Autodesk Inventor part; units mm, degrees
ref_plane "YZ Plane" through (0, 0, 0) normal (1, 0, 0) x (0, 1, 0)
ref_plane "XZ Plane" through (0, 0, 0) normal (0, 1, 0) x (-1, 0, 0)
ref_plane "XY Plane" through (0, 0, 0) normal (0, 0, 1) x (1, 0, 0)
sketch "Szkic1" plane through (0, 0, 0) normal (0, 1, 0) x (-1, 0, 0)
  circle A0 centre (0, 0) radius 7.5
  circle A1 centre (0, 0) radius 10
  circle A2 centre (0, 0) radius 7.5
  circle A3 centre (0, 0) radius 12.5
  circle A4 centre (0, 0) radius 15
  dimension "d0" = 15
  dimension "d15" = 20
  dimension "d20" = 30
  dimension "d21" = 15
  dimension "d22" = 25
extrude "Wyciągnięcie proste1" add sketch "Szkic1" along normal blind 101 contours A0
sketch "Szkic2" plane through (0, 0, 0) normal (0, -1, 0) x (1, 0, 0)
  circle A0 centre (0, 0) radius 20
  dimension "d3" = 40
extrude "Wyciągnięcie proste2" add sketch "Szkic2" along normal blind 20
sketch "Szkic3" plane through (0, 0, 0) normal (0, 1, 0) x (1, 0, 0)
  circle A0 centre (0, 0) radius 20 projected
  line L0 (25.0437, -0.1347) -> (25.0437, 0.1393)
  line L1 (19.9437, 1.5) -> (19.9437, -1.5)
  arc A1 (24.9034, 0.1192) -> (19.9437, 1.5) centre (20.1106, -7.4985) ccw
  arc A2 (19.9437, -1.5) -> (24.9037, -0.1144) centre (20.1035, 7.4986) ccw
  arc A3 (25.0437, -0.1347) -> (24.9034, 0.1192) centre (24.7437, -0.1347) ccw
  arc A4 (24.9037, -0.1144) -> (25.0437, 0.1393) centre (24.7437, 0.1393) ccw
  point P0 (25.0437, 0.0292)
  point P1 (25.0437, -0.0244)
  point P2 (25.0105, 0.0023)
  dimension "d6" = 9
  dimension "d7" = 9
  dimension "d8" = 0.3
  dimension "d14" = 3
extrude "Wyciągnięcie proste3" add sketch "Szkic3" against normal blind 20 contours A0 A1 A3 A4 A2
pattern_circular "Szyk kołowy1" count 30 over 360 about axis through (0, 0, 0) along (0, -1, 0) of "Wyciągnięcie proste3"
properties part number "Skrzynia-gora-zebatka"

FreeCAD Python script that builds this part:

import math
import FreeCAD as App
import Part
import Sketcher
Q = App.Units.Quantity

doc = App.newDocument("Part")
params = doc.addObject("Spreadsheet::Sheet", "Params")
for row, (alias, value) in enumerate([
    ("sketch1_diameter", "15 mm"),
    ("pad1_length", "101 mm"),
    ("sketch2_diameter", "40 mm"),
    ("pad2_length", "20 mm"),
    ("sketch3_radius", "9 mm"),
    ("sketch3_radius2", "0.3 mm"),
    ("sketch3_radius3", "20 mm"),
    ("pad3_length", "20 mm"),
], start=1):
    params.set(f"A{row}", alias)
    params.set(f"B{row}", "=" + value)
    params.setAlias(f"B{row}", alias)

body = doc.addObject("PartDesign::Body", "Body")

# Sketch on XZ plane
sketch1 = body.newObject("Sketcher::SketchObject", "Sketch")
sketch1.AttachmentSupport = (doc.getObject("XZ_Plane"), [""])
sketch1.MapMode = "FlatFace"
sketch1.addGeometry(Part.Circle(App.Vector(0, 0, 0), App.Vector(0, 0, 1), 8), False)
sketch1.addConstraint([
    Sketcher.Constraint("Coincident", 0, 3, -1, 1),
    Sketcher.Constraint("Diameter", 0, Q("15 mm")),
])
sketch1.setExpression("Constraints[1]", "Params.sketch1_diameter")
pad1 = body.newObject("PartDesign::Pad", "Pad")
pad1.Profile = sketch1
pad1.setExpression("Length", "Params.pad1_length")
pad1.Reversed = True

# Sketch on XZ plane
sketch2 = body.newObject("Sketcher::SketchObject", "Sketch001")
sketch2.AttachmentSupport = (doc.getObject("XZ_Plane"), [""])
sketch2.MapMode = "FlatFace"
sketch2.addGeometry(Part.Circle(App.Vector(0, 0, 0), App.Vector(0, 0, 1), 20), False)
sketch2.addConstraint([
    Sketcher.Constraint("Coincident", 0, 3, -1, 1),
    Sketcher.Constraint("Diameter", 0, Q("40 mm")),
])
sketch2.setExpression("Constraints[1]", "Params.sketch2_diameter")
pad2 = body.newObject("PartDesign::Pad", "Pad001")
pad2.Profile = sketch2
pad2.setExpression("Length", "Params.pad2_length")

# Sketch on XZ plane
sketch3 = body.newObject("Sketcher::SketchObject", "Sketch002")
sketch3.AttachmentSupport = (doc.getObject("XZ_Plane"), [""])
sketch3.MapMode = "FlatFace"
sketch3.addGeometry([
    Part.ArcOfCircle(Part.Circle(App.Vector(0, 0, 0), App.Vector(0, 0, 1), 20), math.radians(-4.3), math.radians(4.3)),  # 0
    Part.ArcOfCircle(Part.Circle(App.Vector(20.1, -7.5, 0), App.Vector(0, 0, 1), 9), math.radians(58), math.radians(91)),  # 1
    Part.ArcOfCircle(Part.Circle(App.Vector(24.74, -0.14, 0), App.Vector(0, 0, 1), 0.3), math.radians(27), math.radians(58)),  # 2
    Part.ArcOfCircle(Part.Circle(App.Vector(24.74, 0.13, 0), App.Vector(0, 0, 1), 0.3), math.radians(-58), math.radians(-27)),  # 3
    Part.ArcOfCircle(Part.Circle(App.Vector(20.11, 7.5, 0), App.Vector(0, 0, 1), 9), math.radians(-91), math.radians(-58)),  # 4
], False)
sketch3.addConstraint([
    Sketcher.Constraint("Coincident", 0, 2, 1, 2),
    Sketcher.Constraint("Tangent", 1, 1, 2, 2),
    Sketcher.Constraint("Coincident", 2, 1, 3, 2),
    Sketcher.Constraint("Tangent", 3, 1, 4, 2),
    Sketcher.Constraint("Coincident", 4, 1, 0, 1),
    Sketcher.Constraint("Coincident", 0, 3, -1, 1),
    Sketcher.Constraint("Equal", 2, 3),
    Sketcher.Constraint("Equal", 1, 4),
    Sketcher.Constraint("Vertical", 2, 3, 3, 3),
    Sketcher.Constraint("Vertical", 0, 2, 4, 1),
    Sketcher.Constraint("Radius", 1, Q("9 mm")),
    Sketcher.Constraint("Radius", 2, Q("0.3 mm")),
    Sketcher.Constraint("Radius", 0, Q("20 mm")),
    Sketcher.Constraint("DistanceY", 4, 1, 0, 2, Q("3 mm")),
    Sketcher.Constraint("DistanceX", 0, 2, 3, 3, Q("4.8 mm")),
    Sketcher.Constraint("DistanceX", 4, 3, 2, 1, Q("4.9 mm")),
    Sketcher.Constraint("DistanceY", 2, 3, 3, 1, Q("0.02 mm")),
])
sketch3.setExpression("Constraints[10]", "Params.sketch3_radius")
sketch3.setExpression("Constraints[11]", "Params.sketch3_radius2")
sketch3.setExpression("Constraints[12]", "Params.sketch3_radius3")
pad3 = body.newObject("PartDesign::Pad", "Pad002")
pad3.Profile = sketch3
pad3.setExpression("Length", "Params.pad3_length")
doc.recompute()

polarpattern = body.newObject("PartDesign::PolarPattern", "PolarPattern")
polarpattern.Originals = [pad3]
polarpattern.Axis = (doc.getObject("Y_Axis"), [""])
polarpattern.Angle = 360
polarpattern.Occurrences = 30
body.Tip = polarpattern

doc.recompute()
